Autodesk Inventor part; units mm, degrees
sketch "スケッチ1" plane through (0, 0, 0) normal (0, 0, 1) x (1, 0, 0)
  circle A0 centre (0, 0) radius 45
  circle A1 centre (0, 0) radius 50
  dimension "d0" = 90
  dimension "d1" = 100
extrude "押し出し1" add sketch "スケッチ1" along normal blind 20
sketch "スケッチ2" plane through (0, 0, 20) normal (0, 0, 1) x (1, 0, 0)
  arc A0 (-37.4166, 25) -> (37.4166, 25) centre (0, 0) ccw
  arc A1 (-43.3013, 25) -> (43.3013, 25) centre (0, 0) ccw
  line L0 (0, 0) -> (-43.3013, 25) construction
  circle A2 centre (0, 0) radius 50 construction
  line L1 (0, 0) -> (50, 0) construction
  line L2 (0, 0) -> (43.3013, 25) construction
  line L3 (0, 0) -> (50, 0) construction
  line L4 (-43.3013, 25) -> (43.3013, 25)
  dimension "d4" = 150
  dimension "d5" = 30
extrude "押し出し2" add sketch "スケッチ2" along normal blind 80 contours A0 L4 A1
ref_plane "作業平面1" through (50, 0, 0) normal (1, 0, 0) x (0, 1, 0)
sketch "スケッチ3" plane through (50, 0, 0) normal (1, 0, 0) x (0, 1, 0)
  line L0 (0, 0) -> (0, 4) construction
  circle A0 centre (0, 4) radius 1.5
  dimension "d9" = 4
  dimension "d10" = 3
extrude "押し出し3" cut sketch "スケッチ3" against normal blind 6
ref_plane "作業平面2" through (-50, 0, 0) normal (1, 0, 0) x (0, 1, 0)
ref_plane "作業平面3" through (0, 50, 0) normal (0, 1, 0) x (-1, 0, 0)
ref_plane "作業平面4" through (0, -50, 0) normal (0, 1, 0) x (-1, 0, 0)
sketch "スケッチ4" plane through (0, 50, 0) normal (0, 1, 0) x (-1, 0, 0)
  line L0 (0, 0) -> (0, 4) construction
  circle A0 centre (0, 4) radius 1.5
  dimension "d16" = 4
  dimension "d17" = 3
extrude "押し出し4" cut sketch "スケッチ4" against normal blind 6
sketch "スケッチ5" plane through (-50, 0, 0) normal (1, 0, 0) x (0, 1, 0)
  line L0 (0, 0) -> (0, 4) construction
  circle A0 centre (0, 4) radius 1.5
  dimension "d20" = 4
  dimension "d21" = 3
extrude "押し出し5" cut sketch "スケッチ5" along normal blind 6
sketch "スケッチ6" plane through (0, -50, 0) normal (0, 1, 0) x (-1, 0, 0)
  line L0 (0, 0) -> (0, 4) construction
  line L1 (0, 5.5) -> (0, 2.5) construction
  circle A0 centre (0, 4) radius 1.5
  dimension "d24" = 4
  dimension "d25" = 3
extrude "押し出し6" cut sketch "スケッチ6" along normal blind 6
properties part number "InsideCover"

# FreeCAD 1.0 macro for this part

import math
import FreeCAD as App
import Part
import Sketcher
Q = App.Units.Quantity

doc = App.newDocument("Part")
body = doc.addObject("PartDesign::Body", "Body")

# Sketch on XY plane
sketch1 = body.newObject("Sketcher::SketchObject", "Sketch")
sketch1.AttachmentSupport = (doc.getObject("XY_Plane"), [""])
sketch1.MapMode = "FlatFace"
sketch1.addGeometry(Part.Circle(App.Vector(0, 0, 0), App.Vector(0, 0, 1), 50), False)
sketch1.addGeometry(Part.Circle(App.Vector(0, 0, 0), App.Vector(0, 0, 1), 45), False)
sketch1.addConstraint(Sketcher.Constraint("Coincident", 0, 3, -1, 1))
sketch1.addConstraint(Sketcher.Constraint("Coincident", 1, 3, -1, 1))
sketch1.addConstraint(Sketcher.Constraint("Diameter", 0, Q("3.937 in")))
sketch1.addConstraint(Sketcher.Constraint("Diameter", 1, Q("3.5433 in")))
pad1 = body.newObject("PartDesign::Pad", "Pad")
pad1.Profile = sketch1
pad1.Length = Q("0.7874016 in")

# Sketch on XY plane
sketch2 = body.newObject("Sketcher::SketchObject", "Sketch001")
sketch2.AttachmentSupport = (doc.getObject("XY_Plane"), [""])
sketch2.MapMode = "FlatFace"
sketch2.AttachmentOffset = App.Placement(App.Vector(0, 0, 0.7874016 * 25.4), App.Rotation())
sketch2.addGeometry(Part.ArcOfCircle(Part.Circle(App.Vector(0, 0, 0), App.Vector(0, 0, 1), 45), math.radians(146), math.radians(394)), False)
sketch2.addGeometry(Part.LineSegment(App.Vector(-37, 25, 0), App.Vector(-43, 25, 0)), False)
sketch2.addGeometry(Part.ArcOfCircle(Part.Circle(App.Vector(0, 0, 0), App.Vector(0, 0, 1), 50), math.radians(150), math.radians(390)), False)
sketch2.addGeometry(Part.LineSegment(App.Vector(43, 25, 0), App.Vector(37, 25, 0)), False)
sketch2.addConstraint(Sketcher.Constraint("Coincident", 0, 1, 1, 1))
sketch2.addConstraint(Sketcher.Constraint("Coincident", 1, 2, 2, 1))
sketch2.addConstraint(Sketcher.Constraint("Coincident", 2, 2, 3, 1))
sketch2.addConstraint(Sketcher.Constraint("Coincident", 3, 2, 0, 2))
sketch2.addConstraint(Sketcher.Constraint("Horizontal", 1))
sketch2.addConstraint(Sketcher.Constraint("Horizontal", 3))
sketch2.addConstraint(Sketcher.Constraint("Coincident", 0, 3, -1, 1))
sketch2.addConstraint(Sketcher.Constraint("Coincident", 2, 3, -1, 1))
sketch2.addConstraint(Sketcher.Constraint("Horizontal", 1, 2, 2, 2))
sketch2.addConstraint(Sketcher.Constraint("Radius", 2, Q("1.9685 in")))
sketch2.addConstraint(Sketcher.Constraint("Radius", 0, 45.0))
sketch2.addConstraint(Sketcher.Constraint("DistanceX", 1, 2, 1, 1, 5.8847))
pad2 = body.newObject("PartDesign::Pad", "Pad001")
pad2.Profile = sketch2
pad2.Length = Q("3.1496063 in")

# Sketch on YZ plane
sketch3 = body.newObject("Sketcher::SketchObject", "Sketch002")
sketch3.AttachmentSupport = (doc.getObject("YZ_Plane"), [""])
sketch3.MapMode = "FlatFace"
sketch3.AttachmentOffset = App.Placement(App.Vector(0, 0, 1.9685039 * 25.4), App.Rotation())
sketch3.addGeometry(Part.Circle(App.Vector(0, 4, 0), App.Vector(0, 0, 1), 1.5), False)
sketch3.addConstraint(Sketcher.Constraint("PointOnObject", 0, 3, -2))
sketch3.addConstraint(Sketcher.Constraint("Diameter", 0, Q("0.1181 in")))
sketch3.addConstraint(Sketcher.Constraint("DistanceY", -1, 1, 0, 3, 4.0))
pocket1 = body.newObject("PartDesign::Pocket", "Pocket")
pocket1.Profile = sketch3
pocket1.Length = 6

# Sketch on XZ plane
sketch4 = body.newObject("Sketcher::SketchObject", "Sketch003")
sketch4.AttachmentSupport = (doc.getObject("XZ_Plane"), [""])
sketch4.MapMode = "FlatFace"
sketch4.AttachmentOffset = App.Placement(App.Vector(0, 0, -1.9685039 * 25.4), App.Rotation())
sketch4.addGeometry(Part.Circle(App.Vector(0, 4, 0), App.Vector(0, 0, 1), 1.5), False)
sketch4.addConstraint(Sketcher.Constraint("PointOnObject", 0, 3, -2))
sketch4.addConstraint(Sketcher.Constraint("Diameter", 0, Q("0.1181 in")))
sketch4.addConstraint(Sketcher.Constraint("DistanceY", -1, 1, 0, 3, 4.0))
pocket2 = body.newObject("PartDesign::Pocket", "Pocket001")
pocket2.Profile = sketch4
pocket2.Length = 6
pocket2.Reversed = True

# Sketch on YZ plane
sketch5 = body.newObject("Sketcher::SketchObject", "Sketch004")
sketch5.AttachmentSupport = (doc.getObject("YZ_Plane"), [""])
sketch5.MapMode = "FlatFace"
sketch5.AttachmentOffset = App.Placement(App.Vector(0, 0, -1.9685039 * 25.4), App.Rotation())
sketch5.addGeometry(Part.Circle(App.Vector(0, 4, 0), App.Vector(0, 0, 1), 1.5), False)
sketch5.addConstraint(Sketcher.Constraint("PointOnObject", 0, 3, -2))
sketch5.addConstraint(Sketcher.Constraint("Diameter", 0, Q("0.1181 in")))
sketch5.addConstraint(Sketcher.Constraint("DistanceY", -1, 1, 0, 3, 4.0))
pocket3 = body.newObject("PartDesign::Pocket", "Pocket002")
pocket3.Profile = sketch5
pocket3.Length = 6
pocket3.Reversed = True

# Sketch on XZ plane
sketch6 = body.newObject("Sketcher::SketchObject", "Sketch005")
sketch6.AttachmentSupport = (doc.getObject("XZ_Plane"), [""])
sketch6.MapMode = "FlatFace"
sketch6.AttachmentOffset = App.Placement(App.Vector(0, 0, 1.9685039 * 25.4), App.Rotation())
sketch6.addGeometry(Part.Circle(App.Vector(0, 4, 0), App.Vector(0, 0, 1), 1.5), False)
sketch6.addConstraint(Sketcher.Constraint("PointOnObject", 0, 3, -2))
sketch6.addConstraint(Sketcher.Constraint("Diameter", 0, Q("0.1181 in")))
sketch6.addConstraint(Sketcher.Constraint("DistanceY", -1, 1, 0, 3, 4.0))
pocket4 = body.newObject("PartDesign::Pocket", "Pocket003")
pocket4.Profile = sketch6
pocket4.Length = 6

doc.recompute()
